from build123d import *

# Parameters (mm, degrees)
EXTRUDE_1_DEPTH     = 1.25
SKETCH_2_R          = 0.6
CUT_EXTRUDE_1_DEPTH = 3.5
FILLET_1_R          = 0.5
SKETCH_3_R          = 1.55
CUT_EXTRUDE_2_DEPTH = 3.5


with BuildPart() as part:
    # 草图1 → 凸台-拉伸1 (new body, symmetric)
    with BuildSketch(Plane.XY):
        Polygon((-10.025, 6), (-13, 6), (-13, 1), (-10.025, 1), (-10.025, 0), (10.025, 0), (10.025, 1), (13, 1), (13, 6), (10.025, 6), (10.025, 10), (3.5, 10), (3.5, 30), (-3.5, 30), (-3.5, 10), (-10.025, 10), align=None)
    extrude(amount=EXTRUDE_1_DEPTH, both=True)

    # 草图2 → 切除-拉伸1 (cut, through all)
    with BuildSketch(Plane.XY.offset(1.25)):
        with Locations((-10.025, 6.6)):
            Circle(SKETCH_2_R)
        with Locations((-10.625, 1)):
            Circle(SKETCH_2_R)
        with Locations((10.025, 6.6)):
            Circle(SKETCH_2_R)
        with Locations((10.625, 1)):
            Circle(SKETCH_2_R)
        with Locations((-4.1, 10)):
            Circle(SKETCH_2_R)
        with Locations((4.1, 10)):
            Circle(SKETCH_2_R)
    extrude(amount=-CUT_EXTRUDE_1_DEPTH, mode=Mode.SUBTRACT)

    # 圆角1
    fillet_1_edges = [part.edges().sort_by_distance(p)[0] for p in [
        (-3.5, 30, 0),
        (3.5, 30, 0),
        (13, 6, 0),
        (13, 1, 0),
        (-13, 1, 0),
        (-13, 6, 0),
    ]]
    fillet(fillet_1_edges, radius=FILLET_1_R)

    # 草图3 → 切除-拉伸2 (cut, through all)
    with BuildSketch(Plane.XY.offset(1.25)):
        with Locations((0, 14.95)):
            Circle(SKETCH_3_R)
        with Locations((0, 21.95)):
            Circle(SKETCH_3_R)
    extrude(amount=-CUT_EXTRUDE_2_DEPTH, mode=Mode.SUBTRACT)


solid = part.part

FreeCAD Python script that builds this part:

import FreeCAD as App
import Part
import Sketcher
from FreeCAD import Vector
Q = App.Units.Quantity


def edges_at(feature, points):
    """Names of the edges that pass closest to the given points."""
    edges = feature.Shape.Edges
    near = lambda p: min(range(len(edges)), key=lambda i: edges[i].distToShape(Part.Vertex(*p))[0])
    return sorted({f"Edge{near(p) + 1}" for p in points})


def add_polygon(sketch, points):
    """Adds a closed chain of lines whose ends are joined by coincident constraints."""
    first, n = sketch.GeometryCount, len(points)
    for a, b in zip(points, points[1:] + points[:1]):
        sketch.addGeometry(Part.LineSegment(App.Vector(*a, 0), App.Vector(*b, 0)), False)
    for i in range(n):
        sketch.addConstraint(Sketcher.Constraint("Coincident", first + i, 2, first + (i + 1) % n, 1))

doc = App.newDocument("Part")
params = doc.addObject("Spreadsheet::Sheet", "Params")
for row, (alias, value) in enumerate([
    ("sketch1_width", "7 mm"),
    ("sketch1_height", "5 mm"),
    ("sketch1_height2", "1 mm"),
    ("sketch1_height3", "4 mm"),
    ("sketch1_height4", "20 mm"),
    ("pad1_length", "2.5 mm"),
    ("sketch2_diameter", "1.2 mm"),
    ("fillet_radius", "0.5 mm"),
    ("sketch3_diameter", "3.1 mm"),
], start=1):
    params.set(f"A{row}", alias)
    params.set(f"B{row}", "=" + value)
    params.setAlias(f"B{row}", alias)

body = doc.addObject("PartDesign::Body", "Body")

# Sketch on XY plane
sketch1 = doc.addObject("Sketcher::SketchObject", "Sketch")
body.addObject(sketch1)
sketch1.AttachmentSupport = (doc.XY_Plane, [""])
sketch1.MapMode = "FlatFace"
add_polygon(sketch1, [(-10, 6), (-13, 6), (-13, 1), (-10, 1), (-10, 0), (10, 0), (10, 1), (13, 1), (13, 6), (10, 6), (10, 10), (3.5, 10), (3.5, 30), (-3.5, 30), (-3.5, 10), (-10, 10)])  # lines 0-15
sketch1.addConstraint(Sketcher.Constraint("Horizontal", 0))
sketch1.addConstraint(Sketcher.Constraint("Vertical", 1))
sketch1.addConstraint(Sketcher.Constraint("Horizontal", 2))
sketch1.addConstraint(Sketcher.Constraint("Vertical", 3))
sketch1.addConstraint(Sketcher.Constraint("Horizontal", 4))
sketch1.addConstraint(Sketcher.Constraint("Vertical", 5))
sketch1.addConstraint(Sketcher.Constraint("Horizontal", 6))
sketch1.addConstraint(Sketcher.Constraint("Vertical", 7))
sketch1.addConstraint(Sketcher.Constraint("Horizontal", 8))
sketch1.addConstraint(Sketcher.Constraint("Vertical", 9))
sketch1.addConstraint(Sketcher.Constraint("Horizontal", 10))
sketch1.addConstraint(Sketcher.Constraint("Vertical", 11))
sketch1.addConstraint(Sketcher.Constraint("Horizontal", 12))
sketch1.addConstraint(Sketcher.Constraint("Vertical", 13))
sketch1.addConstraint(Sketcher.Constraint("Horizontal", 14))
sketch1.addConstraint(Sketcher.Constraint("Vertical", 15))
sketch1.addConstraint(Sketcher.Constraint("Symmetric", 3, 2, 4, 2, -1, 1))
sketch1.addConstraint(Sketcher.Constraint("Symmetric", 1, 2, 6, 2, -2))
sketch1.addConstraint(Sketcher.Constraint("Symmetric", 10, 2, 13, 2, -2))
sketch1.addConstraint(Sketcher.Constraint("Symmetric", 8, 2, 15, 2, -2))
sketch1.addConstraint(Sketcher.Constraint("Vertical", 5, 2, 8, 2))
sketch1.addConstraint(Sketcher.Constraint("DistanceX", 12, 2, 12, 1, Q("7 mm")))
sketch1.addConstraint(Sketcher.Constraint("DistanceY", 1, 2, 1, 1, Q("5 mm")))
sketch1.addConstraint(Sketcher.Constraint("DistanceY", 3, 2, 3, 1, Q("1 mm")))
sketch1.addConstraint(Sketcher.Constraint("DistanceY", 9, 1, 9, 2, Q("4 mm")))
sketch1.addConstraint(Sketcher.Constraint("DistanceY", 11, 1, 11, 2, Q("20 mm")))
sketch1.addConstraint(Sketcher.Constraint("DistanceX", 0, 2, -1, 1, Q("13 mm")))
sketch1.addConstraint(Sketcher.Constraint("DistanceX", 4, 1, 4, 2, Q("20.05 mm")))
sketch1.setExpression("Constraints[37]", "Params.sketch1_width")
sketch1.setExpression("Constraints[38]", "Params.sketch1_height")
sketch1.setExpression("Constraints[39]", "Params.sketch1_height2")
sketch1.setExpression("Constraints[40]", "Params.sketch1_height3")
sketch1.setExpression("Constraints[41]", "Params.sketch1_height4")
pad1 = doc.addObject("PartDesign::Pad", "Pad")
body.addObject(pad1)
pad1.Profile = sketch1
pad1.setExpression("Length", "Params.pad1_length")
pad1.Midplane = True

# Sketch on XY plane
sketch2 = doc.addObject("Sketcher::SketchObject", "Sketch001")
body.addObject(sketch2)
sketch2.AttachmentSupport = (doc.XY_Plane, [""])
sketch2.MapMode = "FlatFace"
sketch2.AttachmentOffset = App.Placement(Vector(0, 0, 1.25), App.Rotation())
sketch2.addGeometry(Part.Circle(Vector(-10, 6.6, 0), Vector(0, 0, 1), 0.6), False)
sketch2.addGeometry(Part.Circle(Vector(-10.6, 1, 0), Vector(0, 0, 1), 0.6), False)
sketch2.addGeometry(Part.Circle(Vector(10, 6.6, 0), Vector(0, 0, 1), 0.6), False)
sketch2.addGeometry(Part.Circle(Vector(10.6, 1, 0), Vector(0, 0, 1), 0.6), False)
sketch2.addGeometry(Part.Circle(Vector(-4.1, 10, 0), Vector(0, 0, 1), 0.6), False)
sketch2.addGeometry(Part.Circle(Vector(4.1, 10, 0), Vector(0, 0, 1), 0.6), False)
sketch2.addConstraint(Sketcher.Constraint("Equal", 0, 1))
sketch2.addConstraint(Sketcher.Constraint("Equal", 1, 2))
sketch2.addConstraint(Sketcher.Constraint("Equal", 2, 3))
sketch2.addConstraint(Sketcher.Constraint("Equal", 3, 4))
sketch2.addConstraint(Sketcher.Constraint("Equal", 4, 5))
sketch2.addConstraint(Sketcher.Constraint("Symmetric", 0, 3, 2, 3, -2))
sketch2.addConstraint(Sketcher.Constraint("Symmetric", 1, 3, 3, 3, -2))
sketch2.addConstraint(Sketcher.Constraint("Symmetric", 4, 3, 5, 3, -2))
sketch2.addConstraint(Sketcher.Constraint("Diameter", 0, Q("1.2 mm")))
sketch2.addConstraint(Sketcher.Constraint("DistanceY", -1, 1, 1, 3, Q("1 mm")))
sketch2.addConstraint(Sketcher.Constraint("DistanceY", -1, 1, 4, 3, Q("10 mm")))
sketch2.addConstraint(Sketcher.Constraint("DistanceY", -1, 1, 0, 3, Q("6.6 mm")))
sketch2.addConstraint(Sketcher.Constraint("DistanceX", 4, 3, -1, 1, Q("4.1 mm")))
sketch2.addConstraint(Sketcher.Constraint("DistanceX", 1, 3, 0, 3, Q("0.6 mm")))
sketch2.addConstraint(Sketcher.Constraint("DistanceX", 0, 3, 2, 3, Q("20.05 mm")))
sketch2.setExpression("Constraints[8]", "Params.sketch2_diameter")
pocket1 = doc.addObject("PartDesign::Pocket", "Pocket")
body.addObject(pocket1)
pocket1.Profile = sketch2
pocket1.Type = "ThroughAll"
doc.recompute()

fillet = doc.addObject("PartDesign::Fillet", "Fillet")
body.addObject(fillet)
fillet.Base = (pocket1, edges_at(pocket1, [
    (-3.5, 30, 0),
    (3.5, 30, 0),
    (13, 6, 0),
    (13, 1, 0),
    (-13, 1, 0),
    (-13, 6, 0),
]))
fillet.setExpression("Radius", "Params.fillet_radius")

# Sketch on XY plane
sketch3 = doc.addObject("Sketcher::SketchObject", "Sketch002")
body.addObject(sketch3)
sketch3.AttachmentSupport = (doc.XY_Plane, [""])
sketch3.MapMode = "FlatFace"
sketch3.AttachmentOffset = App.Placement(Vector(0, 0, 1.25), App.Rotation())
sketch3.addGeometry(Part.Circle(Vector(0, 14.9, 0), Vector(0, 0, 1), 1.6), False)
sketch3.addGeometry(Part.Circle(Vector(0, 21.9, 0), Vector(0, 0, 1), 1.6), False)
sketch3.addConstraint(Sketcher.Constraint("Equal", 0, 1))
sketch3.addConstraint(Sketcher.Constraint("PointOnObject", 0, 3, -2))
sketch3.addConstraint(Sketcher.Constraint("PointOnObject", 1, 3, -2))
sketch3.addConstraint(Sketcher.Constraint("Diameter", 0, Q("3.1 mm")))
sketch3.addConstraint(Sketcher.Constraint("DistanceY", 0, 3, 1, 3, Q("7 mm")))
sketch3.addConstraint(Sketcher.Constraint("DistanceY", -1, 1, 0, 3, Q("14.95 mm")))
sketch3.setExpression("Constraints[3]", "Params.sketch3_diameter")
pocket2 = doc.addObject("PartDesign::Pocket", "Pocket001")
body.addObject(pocket2)
pocket2.Profile = sketch3
pocket2.Type = "ThroughAll"

doc.recompute()
